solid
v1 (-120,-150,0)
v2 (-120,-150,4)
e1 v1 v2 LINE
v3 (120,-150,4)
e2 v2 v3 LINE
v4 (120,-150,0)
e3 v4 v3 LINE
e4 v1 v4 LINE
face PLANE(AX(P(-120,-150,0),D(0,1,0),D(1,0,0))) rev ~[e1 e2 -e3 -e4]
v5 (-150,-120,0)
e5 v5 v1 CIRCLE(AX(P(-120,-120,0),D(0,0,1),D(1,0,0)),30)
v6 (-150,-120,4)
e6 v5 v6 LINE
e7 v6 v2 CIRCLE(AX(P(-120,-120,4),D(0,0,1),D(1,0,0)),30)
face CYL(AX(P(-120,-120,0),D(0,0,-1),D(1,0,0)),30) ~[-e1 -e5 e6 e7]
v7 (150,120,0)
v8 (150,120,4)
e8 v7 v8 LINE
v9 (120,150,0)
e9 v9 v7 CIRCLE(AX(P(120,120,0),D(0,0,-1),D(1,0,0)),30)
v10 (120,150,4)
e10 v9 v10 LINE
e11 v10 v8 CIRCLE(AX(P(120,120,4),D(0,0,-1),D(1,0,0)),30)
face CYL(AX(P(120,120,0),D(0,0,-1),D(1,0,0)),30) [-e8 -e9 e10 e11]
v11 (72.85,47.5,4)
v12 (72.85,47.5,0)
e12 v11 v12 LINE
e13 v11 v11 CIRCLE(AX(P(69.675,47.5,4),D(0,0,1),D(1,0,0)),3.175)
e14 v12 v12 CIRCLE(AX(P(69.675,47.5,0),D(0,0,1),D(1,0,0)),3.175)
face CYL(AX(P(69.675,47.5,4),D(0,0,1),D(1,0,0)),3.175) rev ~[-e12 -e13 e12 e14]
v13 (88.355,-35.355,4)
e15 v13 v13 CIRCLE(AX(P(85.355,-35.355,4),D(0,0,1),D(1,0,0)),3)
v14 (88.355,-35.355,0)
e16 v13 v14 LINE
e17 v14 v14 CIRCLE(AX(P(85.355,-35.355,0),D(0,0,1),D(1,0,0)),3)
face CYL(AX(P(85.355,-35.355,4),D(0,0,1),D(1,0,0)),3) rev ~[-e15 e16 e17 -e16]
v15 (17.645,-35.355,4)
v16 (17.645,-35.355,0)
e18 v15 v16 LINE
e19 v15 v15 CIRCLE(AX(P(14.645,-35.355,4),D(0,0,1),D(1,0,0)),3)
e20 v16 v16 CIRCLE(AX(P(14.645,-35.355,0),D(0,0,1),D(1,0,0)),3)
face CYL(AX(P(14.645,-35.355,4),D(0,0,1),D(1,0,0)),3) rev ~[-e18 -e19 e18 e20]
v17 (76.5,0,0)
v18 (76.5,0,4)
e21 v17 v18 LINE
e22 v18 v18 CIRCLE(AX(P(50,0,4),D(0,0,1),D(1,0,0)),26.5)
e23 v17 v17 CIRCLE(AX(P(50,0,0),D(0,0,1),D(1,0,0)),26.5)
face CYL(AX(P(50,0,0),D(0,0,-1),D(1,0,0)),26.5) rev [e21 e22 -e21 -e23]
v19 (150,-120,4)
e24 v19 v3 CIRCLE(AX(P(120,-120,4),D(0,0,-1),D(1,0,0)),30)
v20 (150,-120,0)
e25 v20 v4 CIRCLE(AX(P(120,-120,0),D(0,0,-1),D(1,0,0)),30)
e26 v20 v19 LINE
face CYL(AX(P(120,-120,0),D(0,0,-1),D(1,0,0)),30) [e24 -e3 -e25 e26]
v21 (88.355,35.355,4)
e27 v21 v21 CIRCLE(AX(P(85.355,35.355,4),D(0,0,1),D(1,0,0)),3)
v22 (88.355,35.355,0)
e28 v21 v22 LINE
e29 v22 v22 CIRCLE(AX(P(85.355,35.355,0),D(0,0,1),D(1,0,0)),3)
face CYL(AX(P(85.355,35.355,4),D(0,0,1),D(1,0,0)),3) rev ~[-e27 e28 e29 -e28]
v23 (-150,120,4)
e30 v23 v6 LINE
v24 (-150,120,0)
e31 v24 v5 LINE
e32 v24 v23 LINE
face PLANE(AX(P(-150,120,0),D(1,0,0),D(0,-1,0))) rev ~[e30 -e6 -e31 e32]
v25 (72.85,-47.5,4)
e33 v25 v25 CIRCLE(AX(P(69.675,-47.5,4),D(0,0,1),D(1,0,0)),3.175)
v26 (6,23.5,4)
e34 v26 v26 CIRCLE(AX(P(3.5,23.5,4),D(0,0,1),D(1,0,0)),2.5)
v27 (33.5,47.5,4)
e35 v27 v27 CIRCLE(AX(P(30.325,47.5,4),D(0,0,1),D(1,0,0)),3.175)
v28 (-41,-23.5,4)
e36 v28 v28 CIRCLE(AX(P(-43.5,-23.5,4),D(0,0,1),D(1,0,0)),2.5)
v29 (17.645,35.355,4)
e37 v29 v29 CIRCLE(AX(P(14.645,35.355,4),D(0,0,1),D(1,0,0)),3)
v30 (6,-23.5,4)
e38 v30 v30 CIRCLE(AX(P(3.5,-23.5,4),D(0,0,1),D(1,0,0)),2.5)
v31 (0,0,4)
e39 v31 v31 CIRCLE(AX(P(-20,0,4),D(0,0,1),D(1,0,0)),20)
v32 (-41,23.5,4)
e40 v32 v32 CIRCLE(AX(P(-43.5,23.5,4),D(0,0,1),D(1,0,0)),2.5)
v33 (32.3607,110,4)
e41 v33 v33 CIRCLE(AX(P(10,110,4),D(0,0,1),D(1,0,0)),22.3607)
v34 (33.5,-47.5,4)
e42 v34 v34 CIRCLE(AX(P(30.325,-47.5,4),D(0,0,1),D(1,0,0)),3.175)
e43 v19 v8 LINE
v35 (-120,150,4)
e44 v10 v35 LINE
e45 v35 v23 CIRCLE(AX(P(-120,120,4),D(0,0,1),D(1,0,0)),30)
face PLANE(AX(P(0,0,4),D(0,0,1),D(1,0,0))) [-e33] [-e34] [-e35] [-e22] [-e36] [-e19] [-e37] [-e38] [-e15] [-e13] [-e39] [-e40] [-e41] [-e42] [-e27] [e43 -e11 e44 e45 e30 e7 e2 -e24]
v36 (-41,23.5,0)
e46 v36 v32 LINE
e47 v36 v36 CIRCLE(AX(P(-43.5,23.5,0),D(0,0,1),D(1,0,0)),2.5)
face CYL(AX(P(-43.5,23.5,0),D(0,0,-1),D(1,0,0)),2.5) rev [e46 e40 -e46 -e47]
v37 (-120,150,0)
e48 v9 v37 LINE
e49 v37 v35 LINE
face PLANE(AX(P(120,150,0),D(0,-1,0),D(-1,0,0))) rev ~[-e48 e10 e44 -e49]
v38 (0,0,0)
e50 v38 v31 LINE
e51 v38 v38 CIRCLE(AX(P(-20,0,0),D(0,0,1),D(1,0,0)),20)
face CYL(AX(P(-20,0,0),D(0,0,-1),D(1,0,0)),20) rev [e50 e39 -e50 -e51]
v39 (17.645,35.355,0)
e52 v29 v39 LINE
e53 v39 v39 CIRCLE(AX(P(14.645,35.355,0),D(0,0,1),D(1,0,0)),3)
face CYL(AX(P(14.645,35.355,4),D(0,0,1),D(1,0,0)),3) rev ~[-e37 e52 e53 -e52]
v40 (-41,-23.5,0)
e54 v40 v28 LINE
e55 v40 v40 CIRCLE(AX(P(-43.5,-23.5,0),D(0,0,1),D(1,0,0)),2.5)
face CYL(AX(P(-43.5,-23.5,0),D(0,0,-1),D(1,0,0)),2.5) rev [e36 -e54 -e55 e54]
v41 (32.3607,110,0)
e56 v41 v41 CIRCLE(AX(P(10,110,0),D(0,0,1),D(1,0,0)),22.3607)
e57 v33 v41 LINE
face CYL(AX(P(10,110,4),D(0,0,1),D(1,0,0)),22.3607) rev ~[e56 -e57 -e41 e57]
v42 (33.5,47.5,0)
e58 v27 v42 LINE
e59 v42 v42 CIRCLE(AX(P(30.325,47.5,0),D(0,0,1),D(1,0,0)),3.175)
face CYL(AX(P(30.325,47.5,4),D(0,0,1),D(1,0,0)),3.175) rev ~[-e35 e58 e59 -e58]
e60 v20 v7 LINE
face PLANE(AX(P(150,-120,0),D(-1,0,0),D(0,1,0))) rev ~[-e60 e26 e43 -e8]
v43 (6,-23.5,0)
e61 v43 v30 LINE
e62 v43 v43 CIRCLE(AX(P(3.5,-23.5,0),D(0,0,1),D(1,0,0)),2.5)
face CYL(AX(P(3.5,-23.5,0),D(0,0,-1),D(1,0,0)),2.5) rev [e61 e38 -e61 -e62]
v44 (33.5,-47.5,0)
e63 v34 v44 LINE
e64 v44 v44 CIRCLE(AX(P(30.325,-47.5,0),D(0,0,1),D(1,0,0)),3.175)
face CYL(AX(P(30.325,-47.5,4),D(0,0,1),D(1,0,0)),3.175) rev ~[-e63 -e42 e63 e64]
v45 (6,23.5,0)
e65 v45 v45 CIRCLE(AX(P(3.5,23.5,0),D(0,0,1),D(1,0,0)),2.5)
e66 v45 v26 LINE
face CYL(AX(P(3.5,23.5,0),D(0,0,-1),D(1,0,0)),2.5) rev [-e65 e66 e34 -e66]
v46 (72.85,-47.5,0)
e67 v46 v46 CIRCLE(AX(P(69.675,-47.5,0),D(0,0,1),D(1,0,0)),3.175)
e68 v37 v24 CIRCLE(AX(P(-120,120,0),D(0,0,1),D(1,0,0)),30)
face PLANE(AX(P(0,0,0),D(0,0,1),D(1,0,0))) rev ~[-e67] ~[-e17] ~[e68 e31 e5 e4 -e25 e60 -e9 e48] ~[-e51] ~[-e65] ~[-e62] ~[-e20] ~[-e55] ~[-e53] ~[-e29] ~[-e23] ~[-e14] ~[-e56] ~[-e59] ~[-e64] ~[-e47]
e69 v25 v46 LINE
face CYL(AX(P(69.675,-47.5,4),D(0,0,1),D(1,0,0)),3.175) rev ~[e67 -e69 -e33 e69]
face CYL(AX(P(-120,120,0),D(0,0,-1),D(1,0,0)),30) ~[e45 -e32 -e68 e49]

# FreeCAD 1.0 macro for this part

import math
import FreeCAD as App
import Part
import Sketcher
from FreeCAD import Vector
Q = App.Units.Quantity

doc = App.newDocument("Part")
body = doc.addObject("PartDesign::Body", "Body")

sketch1 = doc.addObject("Sketcher::SketchObject", "Sketch")
body.addObject(sketch1)
sketch1.AttachmentSupport = (doc.XY_Plane, [""])
sketch1.MapMode = "FlatFace"
sketch1.addGeometry([
    Part.ArcOfCircle(Part.Circle(Vector(-120, -120, 0), Vector(0, 0, 1), 30), math.radians(180), math.radians(270)),
    Part.LineSegment(Vector(-120, -150, 0), Vector(120, -150, 0)),
    Part.ArcOfCircle(Part.Circle(Vector(120, -120, 0), Vector(0, 0, 1), 30), math.radians(-90), math.radians(0)),
    Part.LineSegment(Vector(150, -120, 0), Vector(150, 120, 0)),
    Part.ArcOfCircle(Part.Circle(Vector(120, 120, 0), Vector(0, 0, 1), 30), math.radians(0), math.radians(90)),
    Part.LineSegment(Vector(120, 150, 0), Vector(-120, 150, 0)),
    Part.ArcOfCircle(Part.Circle(Vector(-120, 120, 0), Vector(0, 0, 1), 30), math.radians(90), math.radians(180)),
    Part.LineSegment(Vector(-150, 120, 0), Vector(-150, -120, 0)),
    Part.Circle(Vector(-43.5, -23.5, 0), Vector(0, 0, 1), 2.5),
    Part.Circle(Vector(3.5, -23.5, 0), Vector(0, 0, 1), 2.5),
    Part.Circle(Vector(-43.5, 23.5, 0), Vector(0, 0, 1), 2.5),
    Part.Circle(Vector(-20, 0, 0), Vector(0, 0, 1), 20),
    Part.Circle(Vector(3.5, 23.5, 0), Vector(0, 0, 1), 2.5),
    Part.Circle(Vector(50, 0, 0), Vector(0, 0, 1), 26.5),
], False)
sketch1.addConstraint([
    Sketcher.Constraint("Tangent", 0, 2, 1, 1),
    Sketcher.Constraint("Tangent", 1, 2, 2, 1),
    Sketcher.Constraint("Tangent", 2, 2, 3, 1),
    Sketcher.Constraint("Tangent", 3, 2, 4, 1),
    Sketcher.Constraint("Tangent", 4, 2, 5, 1),
    Sketcher.Constraint("Tangent", 5, 2, 6, 1),
    Sketcher.Constraint("Tangent", 6, 2, 7, 1),
    Sketcher.Constraint("Tangent", 7, 2, 0, 1),
    Sketcher.Constraint("Horizontal", 1),
    Sketcher.Constraint("Vertical", 3),
    Sketcher.Constraint("Horizontal", 5),
    Sketcher.Constraint("Vertical", 7),
    Sketcher.Constraint("Equal", 0, 2),
    Sketcher.Constraint("Equal", 2, 4),
    Sketcher.Constraint("Equal", 4, 6),
    Sketcher.Constraint("Equal", 8, 9),
    Sketcher.Constraint("Equal", 9, 10),
    Sketcher.Constraint("Equal", 10, 12),
    Sketcher.Constraint("Symmetric", 0, 3, 4, 3, -1, 1),
    Sketcher.Constraint("Symmetric", 8, 3, 10, 3, -1),
    Sketcher.Constraint("Symmetric", 9, 3, 12, 3, -1),
    Sketcher.Constraint("PointOnObject", 11, 3, -1),
    Sketcher.Constraint("PointOnObject", 13, 3, -1),
    Sketcher.Constraint("Horizontal", 8, 3, 9, 3),
    Sketcher.Constraint("Equal", 5, 3),
    Sketcher.Constraint("Diameter", 8, Q("5 mm")),
    Sketcher.Constraint("Diameter", 11, Q("40 mm")),
    Sketcher.Constraint("Diameter", 13, Q("53 mm")),
    Sketcher.Constraint("Radius", 0, Q("30 mm")),
    Sketcher.Constraint("DistanceX", 1, 1, 1, 2, Q("240 mm")),
    Sketcher.Constraint("DistanceX", 11, 3, -1, 1, Q("20 mm")),
    Sketcher.Constraint("DistanceX", -1, 1, 13, 3, Q("50 mm")),
    Sketcher.Constraint("DistanceX", 8, 3, 9, 3, Q("47 mm")),
    Sketcher.Constraint("DistanceY", 8, 3, 10, 3, Q("47 mm")),
    Sketcher.Constraint("DistanceX", 8, 3, -1, 1, Q("43.5 mm")),
])
pad1 = doc.addObject("PartDesign::Pad", "Pad")
body.addObject(pad1)
pad1.Profile = sketch1
pad1.Length = 4

sketch2 = doc.addObject("Sketcher::SketchObject", "Sketch001")
body.addObject(sketch2)
sketch2.AttachmentSupport = (doc.XY_Plane, [""])
sketch2.MapMode = "FlatFace"
sketch2.AttachmentOffset = App.Placement(Vector(0, 0, 4), App.Rotation())
sketch2.addGeometry([
    Part.Circle(Vector(14.6, -35.4, 0), Vector(0, 0, 1), 3),
    Part.Circle(Vector(85.4, -35.4, 0), Vector(0, 0, 1), 3),
    Part.Circle(Vector(85.4, 35.4, 0), Vector(0, 0, 1), 3),
    Part.Circle(Vector(14.6, 35.4, 0), Vector(0, 0, 1), 3),
], False)
sketch2.addConstraint([
    Sketcher.Constraint("Equal", 0, 1),
    Sketcher.Constraint("Equal", 1, 2),
    Sketcher.Constraint("Equal", 2, 3),
    Sketcher.Constraint("Symmetric", 1, 3, 2, 3, -1),
    Sketcher.Constraint("Symmetric", 0, 3, 3, 3, -1),
    Sketcher.Constraint("Horizontal", 0, 3, 1, 3),
    Sketcher.Constraint("Diameter", 0, Q("6 mm")),
    Sketcher.Constraint("DistanceX", 0, 3, 1, 3, Q("70.71 mm")),
    Sketcher.Constraint("DistanceY", 1, 3, 2, 3, Q("70.71 mm")),
    Sketcher.Constraint("DistanceX", -1, 1, 0, 3, Q("14.645 mm")),
])
pocket1 = doc.addObject("PartDesign::Pocket", "Pocket")
body.addObject(pocket1)
pocket1.Profile = sketch2
pocket1.Length = 10

sketch3 = doc.addObject("Sketcher::SketchObject", "Sketch002")
body.addObject(sketch3)
sketch3.AttachmentSupport = (doc.XY_Plane, [""])
sketch3.MapMode = "FlatFace"
sketch3.AttachmentOffset = App.Placement(Vector(0, 0, 4), App.Rotation())
sketch3.addGeometry([
    Part.Circle(Vector(30.3, 47.5, 0), Vector(0, 0, 1), 3.2),
    Part.Circle(Vector(69.7, 47.5, 0), Vector(0, 0, 1), 3.2),
    Part.Circle(Vector(69.7, -47.5, 0), Vector(0, 0, 1), 3.2),
    Part.Circle(Vector(30.3, -47.5, 0), Vector(0, 0, 1), 3.2),
], False)
sketch3.addConstraint([
    Sketcher.Constraint("Equal", 0, 1),
    Sketcher.Constraint("Equal", 1, 2),
    Sketcher.Constraint("Equal", 2, 3),
    Sketcher.Constraint("Symmetric", 1, 3, 2, 3, -1),
    Sketcher.Constraint("Symmetric", 0, 3, 3, 3, -1),
    Sketcher.Constraint("Horizontal", 0, 3, 1, 3),
    Sketcher.Constraint("Diameter", 0, Q("6.35 mm")),
    Sketcher.Constraint("DistanceY", 2, 3, 1, 3, Q("95 mm")),
    Sketcher.Constraint("DistanceX", 0, 3, 1, 3, Q("39.35 mm")),
    Sketcher.Constraint("DistanceX", -1, 1, 0, 3, Q("30.325 mm")),
])
pocket2 = doc.addObject("PartDesign::Pocket", "Pocket001")
body.addObject(pocket2)
pocket2.Profile = sketch3
pocket2.Length = 88

sketch4 = doc.addObject("Sketcher::SketchObject", "Sketch003")
body.addObject(sketch4)
sketch4.AttachmentSupport = (doc.XY_Plane, [""])
sketch4.MapMode = "FlatFace"
sketch4.AttachmentOffset = App.Placement(Vector(0, 0, 4), App.Rotation())
sketch4.addGeometry(Part.Circle(Vector(10, 110, 0), Vector(0, 0, 1), 22), False)
sketch4.addConstraint([
    Sketcher.Constraint("DistanceX", -1, 1, 0, 3, Q("10 mm")),
    Sketcher.Constraint("DistanceY", -1, 1, 0, 3, Q("110 mm")),
    Sketcher.Constraint("Diameter", 0, Q("44.7214 mm")),
])
pocket3 = doc.addObject("PartDesign::Pocket", "Pocket002")
body.addObject(pocket3)
pocket3.Profile = sketch4
pocket3.Length = 150

doc.recompute()
